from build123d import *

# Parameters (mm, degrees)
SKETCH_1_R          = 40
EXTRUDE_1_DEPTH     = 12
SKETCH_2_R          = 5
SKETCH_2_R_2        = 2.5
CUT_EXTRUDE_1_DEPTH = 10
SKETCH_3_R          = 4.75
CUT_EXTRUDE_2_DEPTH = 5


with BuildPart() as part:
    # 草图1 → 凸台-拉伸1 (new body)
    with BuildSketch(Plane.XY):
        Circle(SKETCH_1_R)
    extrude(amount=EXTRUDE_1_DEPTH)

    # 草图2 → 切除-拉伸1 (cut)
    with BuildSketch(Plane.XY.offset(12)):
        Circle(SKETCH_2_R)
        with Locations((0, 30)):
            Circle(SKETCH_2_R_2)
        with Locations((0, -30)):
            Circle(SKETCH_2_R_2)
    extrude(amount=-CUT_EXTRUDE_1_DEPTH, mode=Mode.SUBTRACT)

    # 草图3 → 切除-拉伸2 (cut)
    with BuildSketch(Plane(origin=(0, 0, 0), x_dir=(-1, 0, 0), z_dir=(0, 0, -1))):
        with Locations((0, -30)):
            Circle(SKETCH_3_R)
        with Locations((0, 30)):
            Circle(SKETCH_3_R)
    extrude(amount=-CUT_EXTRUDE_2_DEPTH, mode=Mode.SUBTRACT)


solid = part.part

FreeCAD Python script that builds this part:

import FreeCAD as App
import Part
import Sketcher

V = App.Vector
Q = App.Units.Quantity

doc = App.newDocument("Part")
body = doc.addObject("PartDesign::Body", "Body")

sketch1 = doc.addObject("Sketcher::SketchObject", "Sketch")
body.addObject(sketch1)
sketch1.AttachmentSupport = (doc.XY_Plane, [""])
sketch1.MapMode = "FlatFace"
sketch1.addGeometry(Part.Circle(V(0, 0, 0), V(0, 0, 1), 40), False)
sketch1.addConstraint(Sketcher.Constraint("Coincident", 0, 3, -1, 1))
sketch1.addConstraint(Sketcher.Constraint("Diameter", 0, Q("80 mm")))
pad1 = doc.addObject("PartDesign::Pad", "Pad")
body.addObject(pad1)
pad1.Profile = sketch1
pad1.Length = 12

sketch2 = doc.addObject("Sketcher::SketchObject", "Sketch001")
body.addObject(sketch2)
sketch2.AttachmentSupport = (doc.XY_Plane, [""])
sketch2.MapMode = "FlatFace"
sketch2.AttachmentOffset = App.Placement(V(0, 0, 12), App.Rotation())
sketch2.addGeometry(Part.Circle(V(0, 0, 0), V(0, 0, 1), 5), False)
sketch2.addGeometry(Part.Circle(V(0, 30, 0), V(0, 0, 1), 2.5), False)
sketch2.addGeometry(Part.Circle(V(0, -30, 0), V(0, 0, 1), 2.5), False)
sketch2.addConstraint(Sketcher.Constraint("Coincident", 0, 3, -1, 1))
sketch2.addConstraint(Sketcher.Constraint("Equal", 1, 2))
sketch2.addConstraint(Sketcher.Constraint("Symmetric", 1, 3, 2, 3, -1, 1))
sketch2.addConstraint(Sketcher.Constraint("PointOnObject", 1, 3, -2))
sketch2.addConstraint(Sketcher.Constraint("Diameter", 0, Q("10 mm")))
sketch2.addConstraint(Sketcher.Constraint("Diameter", 1, Q("5 mm")))
sketch2.addConstraint(Sketcher.Constraint("DistanceY", -1, 1, 1, 3, Q("30 mm")))
pocket1 = doc.addObject("PartDesign::Pocket", "Pocket")
body.addObject(pocket1)
pocket1.Profile = sketch2
pocket1.Length = 10

sketch3 = doc.addObject("Sketcher::SketchObject", "Sketch002")
body.addObject(sketch3)
sketch3.AttachmentSupport = (doc.XY_Plane, [""])
sketch3.MapMode = "FlatFace"
sketch3.addGeometry(Part.Circle(V(0, -30, 0), V(0, 0, 1), 4.8), False)
sketch3.addGeometry(Part.Circle(V(0, 30, 0), V(0, 0, 1), 4.8), False)
sketch3.addConstraint(Sketcher.Constraint("Equal", 0, 1))
sketch3.addConstraint(Sketcher.Constraint("Symmetric", 0, 3, 1, 3, -1, 1))
sketch3.addConstraint(Sketcher.Constraint("PointOnObject", 0, 3, -2))
sketch3.addConstraint(Sketcher.Constraint("Diameter", 0, Q("9.5 mm")))
sketch3.addConstraint(Sketcher.Constraint("DistanceY", 0, 3, -1, 1, Q("30 mm")))
pocket2 = doc.addObject("PartDesign::Pocket", "Pocket001")
body.addObject(pocket2)
pocket2.Profile = sketch3
pocket2.Length = 5
pocket2.Reversed = True

doc.recompute()
